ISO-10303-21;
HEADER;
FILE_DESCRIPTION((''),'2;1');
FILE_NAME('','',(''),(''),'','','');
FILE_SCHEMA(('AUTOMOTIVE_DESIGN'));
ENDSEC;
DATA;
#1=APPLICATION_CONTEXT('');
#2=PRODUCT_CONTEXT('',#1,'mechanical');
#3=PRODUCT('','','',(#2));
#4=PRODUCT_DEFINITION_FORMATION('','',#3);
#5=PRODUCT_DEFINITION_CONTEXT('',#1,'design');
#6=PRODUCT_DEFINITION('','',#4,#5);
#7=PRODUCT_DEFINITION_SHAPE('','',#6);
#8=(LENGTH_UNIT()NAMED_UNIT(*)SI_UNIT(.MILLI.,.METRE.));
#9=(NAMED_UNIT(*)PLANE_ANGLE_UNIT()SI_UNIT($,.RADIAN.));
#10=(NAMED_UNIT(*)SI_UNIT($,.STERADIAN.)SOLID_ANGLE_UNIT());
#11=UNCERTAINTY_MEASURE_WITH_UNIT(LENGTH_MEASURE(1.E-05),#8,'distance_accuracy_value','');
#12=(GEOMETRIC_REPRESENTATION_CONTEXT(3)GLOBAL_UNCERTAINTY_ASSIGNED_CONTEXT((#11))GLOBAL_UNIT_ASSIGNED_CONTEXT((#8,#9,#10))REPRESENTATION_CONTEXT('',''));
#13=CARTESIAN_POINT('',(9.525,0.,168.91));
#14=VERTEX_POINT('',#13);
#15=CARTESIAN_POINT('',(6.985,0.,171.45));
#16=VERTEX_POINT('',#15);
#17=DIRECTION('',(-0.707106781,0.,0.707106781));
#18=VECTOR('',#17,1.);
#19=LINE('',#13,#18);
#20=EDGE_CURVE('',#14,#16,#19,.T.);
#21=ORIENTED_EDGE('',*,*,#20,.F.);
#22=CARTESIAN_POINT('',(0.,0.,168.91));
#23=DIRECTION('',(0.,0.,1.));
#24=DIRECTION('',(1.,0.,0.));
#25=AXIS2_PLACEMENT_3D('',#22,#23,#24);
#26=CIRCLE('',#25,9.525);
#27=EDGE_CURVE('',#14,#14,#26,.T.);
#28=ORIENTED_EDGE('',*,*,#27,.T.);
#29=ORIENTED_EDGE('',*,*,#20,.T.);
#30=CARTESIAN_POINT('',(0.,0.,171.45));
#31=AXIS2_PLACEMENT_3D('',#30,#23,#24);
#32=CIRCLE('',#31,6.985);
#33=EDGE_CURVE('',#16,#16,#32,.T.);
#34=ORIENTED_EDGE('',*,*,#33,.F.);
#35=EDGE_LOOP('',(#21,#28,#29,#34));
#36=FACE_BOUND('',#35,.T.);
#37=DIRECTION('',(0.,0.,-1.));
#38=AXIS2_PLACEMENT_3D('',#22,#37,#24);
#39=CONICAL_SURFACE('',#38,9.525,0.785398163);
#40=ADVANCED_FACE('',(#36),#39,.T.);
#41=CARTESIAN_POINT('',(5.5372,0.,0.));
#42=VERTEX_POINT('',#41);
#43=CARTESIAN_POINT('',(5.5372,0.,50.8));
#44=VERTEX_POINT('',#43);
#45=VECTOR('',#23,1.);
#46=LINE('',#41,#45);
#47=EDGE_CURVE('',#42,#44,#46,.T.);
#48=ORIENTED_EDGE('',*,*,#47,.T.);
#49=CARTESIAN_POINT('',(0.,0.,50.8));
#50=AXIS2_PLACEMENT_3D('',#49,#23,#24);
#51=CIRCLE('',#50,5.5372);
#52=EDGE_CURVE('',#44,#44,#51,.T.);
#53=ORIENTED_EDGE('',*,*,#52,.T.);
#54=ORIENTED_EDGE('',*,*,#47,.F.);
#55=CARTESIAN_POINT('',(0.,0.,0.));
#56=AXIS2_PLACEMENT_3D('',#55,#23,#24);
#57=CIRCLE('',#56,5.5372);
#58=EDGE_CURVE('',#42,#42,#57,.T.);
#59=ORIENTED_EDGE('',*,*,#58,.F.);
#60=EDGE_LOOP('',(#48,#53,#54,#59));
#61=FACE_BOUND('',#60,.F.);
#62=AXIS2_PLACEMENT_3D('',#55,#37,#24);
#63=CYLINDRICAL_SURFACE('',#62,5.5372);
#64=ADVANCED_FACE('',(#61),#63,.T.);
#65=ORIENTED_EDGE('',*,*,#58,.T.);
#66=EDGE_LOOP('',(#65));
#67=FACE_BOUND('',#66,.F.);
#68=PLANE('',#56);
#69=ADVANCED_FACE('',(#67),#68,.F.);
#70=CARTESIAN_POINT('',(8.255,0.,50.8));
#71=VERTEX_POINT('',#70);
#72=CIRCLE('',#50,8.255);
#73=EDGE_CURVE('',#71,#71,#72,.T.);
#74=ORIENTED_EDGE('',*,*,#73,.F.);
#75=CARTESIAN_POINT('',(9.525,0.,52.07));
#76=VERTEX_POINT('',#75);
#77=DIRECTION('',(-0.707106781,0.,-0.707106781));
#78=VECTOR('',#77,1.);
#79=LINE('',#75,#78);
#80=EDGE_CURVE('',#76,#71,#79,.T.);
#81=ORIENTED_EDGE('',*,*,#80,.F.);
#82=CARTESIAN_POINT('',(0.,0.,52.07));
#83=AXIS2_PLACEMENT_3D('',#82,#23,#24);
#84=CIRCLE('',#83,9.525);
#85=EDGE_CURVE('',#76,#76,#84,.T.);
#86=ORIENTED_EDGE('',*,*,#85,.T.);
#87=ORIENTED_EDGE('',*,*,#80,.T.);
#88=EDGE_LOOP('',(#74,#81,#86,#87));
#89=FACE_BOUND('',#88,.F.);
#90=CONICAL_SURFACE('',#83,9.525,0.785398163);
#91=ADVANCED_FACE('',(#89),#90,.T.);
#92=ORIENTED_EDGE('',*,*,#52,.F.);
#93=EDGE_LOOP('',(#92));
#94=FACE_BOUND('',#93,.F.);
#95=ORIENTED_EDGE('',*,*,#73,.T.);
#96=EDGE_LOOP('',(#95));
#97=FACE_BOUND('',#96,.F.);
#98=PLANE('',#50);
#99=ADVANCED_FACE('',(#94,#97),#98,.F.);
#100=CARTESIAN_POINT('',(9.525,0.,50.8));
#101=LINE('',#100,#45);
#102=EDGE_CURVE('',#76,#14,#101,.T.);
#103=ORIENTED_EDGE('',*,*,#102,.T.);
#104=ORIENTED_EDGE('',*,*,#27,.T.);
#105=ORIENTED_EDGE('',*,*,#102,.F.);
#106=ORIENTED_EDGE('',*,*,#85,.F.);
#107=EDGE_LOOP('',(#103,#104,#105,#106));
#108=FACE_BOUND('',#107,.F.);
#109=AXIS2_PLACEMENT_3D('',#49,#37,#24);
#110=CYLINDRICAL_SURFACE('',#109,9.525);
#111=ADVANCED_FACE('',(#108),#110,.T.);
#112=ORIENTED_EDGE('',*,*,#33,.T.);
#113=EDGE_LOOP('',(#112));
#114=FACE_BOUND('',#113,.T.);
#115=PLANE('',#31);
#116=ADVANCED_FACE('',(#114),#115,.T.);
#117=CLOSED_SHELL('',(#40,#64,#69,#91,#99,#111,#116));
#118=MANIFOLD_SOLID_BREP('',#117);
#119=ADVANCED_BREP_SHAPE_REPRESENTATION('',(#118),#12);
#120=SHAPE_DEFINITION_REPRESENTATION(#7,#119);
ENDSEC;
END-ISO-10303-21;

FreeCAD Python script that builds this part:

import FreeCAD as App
import Part
import Sketcher
Q = App.Units.Quantity


def edges_at(feature, points):
    """Names of the edges that pass closest to the given points."""
    edges = feature.Shape.Edges
    near = lambda p: min(range(len(edges)), key=lambda i: edges[i].distToShape(Part.Vertex(*p))[0])
    return sorted({f"Edge{near(p) + 1}" for p in points})

doc = App.newDocument("Part")
body = doc.addObject("PartDesign::Body", "Body")

# Sketch on XY plane
sketch1 = body.newObject("Sketcher::SketchObject", "Sketch")
sketch1.AttachmentSupport = (doc.getObject("XY_Plane"), [""])
sketch1.MapMode = "FlatFace"
sketch1.addGeometry(Part.Circle(App.Vector(0, 0, 0), App.Vector(0, 0, 1), 6), False)
sketch1.addConstraint([
    Sketcher.Constraint("Coincident", 0, 3, -1, 1),
    Sketcher.Constraint("Diameter", 0, Q("0.436 in")),
])
pad1 = body.newObject("PartDesign::Pad", "Pad")
pad1.Profile = sketch1
pad1.Length = Q("2 in")

# Sketch on XY plane
sketch2 = body.newObject("Sketcher::SketchObject", "Sketch001")
sketch2.AttachmentSupport = (doc.getObject("XY_Plane"), [""])
sketch2.MapMode = "FlatFace"
sketch2.AttachmentOffset = App.Placement(App.Vector(0, 0, 2 * 25.4), App.Rotation())
sketch2.addGeometry(Part.Circle(App.Vector(0, 0, 0), App.Vector(0, 0, 1), 10), False)
sketch2.addConstraint([
    Sketcher.Constraint("Coincident", 0, 3, -1, 1),
    Sketcher.Constraint("Diameter", 0, Q("0.75 in")),
])
pad2 = body.newObject("PartDesign::Pad", "Pad001")
pad2.Profile = sketch2
pad2.Length = Q("4.75 in")
doc.recompute()

chamfer = body.newObject("PartDesign::Chamfer", "Chamfer")
chamfer.Base = (pad2, edges_at(pad2, [(-9.525, 0, 171.45)]))
chamfer.Size = Q("0.1 in")
doc.recompute()

chamfer2 = body.newObject("PartDesign::Chamfer", "Chamfer001")
chamfer2.Base = (chamfer, edges_at(chamfer, [(-9.525, 0, 50.8)]))
chamfer2.Size = Q("0.05 in")

doc.recompute()
